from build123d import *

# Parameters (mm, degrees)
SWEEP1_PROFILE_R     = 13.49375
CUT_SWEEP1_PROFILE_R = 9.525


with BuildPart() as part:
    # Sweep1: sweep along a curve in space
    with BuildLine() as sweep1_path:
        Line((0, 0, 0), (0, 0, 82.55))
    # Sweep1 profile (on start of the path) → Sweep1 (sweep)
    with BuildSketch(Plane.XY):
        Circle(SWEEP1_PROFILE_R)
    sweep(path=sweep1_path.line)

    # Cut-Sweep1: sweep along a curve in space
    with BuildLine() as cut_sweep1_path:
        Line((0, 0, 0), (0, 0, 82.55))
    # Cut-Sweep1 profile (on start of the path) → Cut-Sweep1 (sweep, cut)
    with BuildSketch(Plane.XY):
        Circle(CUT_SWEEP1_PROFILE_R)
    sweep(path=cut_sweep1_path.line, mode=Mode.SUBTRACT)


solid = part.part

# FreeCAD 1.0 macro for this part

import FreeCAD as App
import Part
import Sketcher

V = App.Vector
Q = App.Units.Quantity

doc = App.newDocument("Part")
body = doc.addObject("PartDesign::Body", "Body")

# Sketch on XY plane
sketch1 = body.newObject("Sketcher::SketchObject", "Sketch")
sketch1.AttachmentSupport = (doc.getObject("XY_Plane"), [""])
sketch1.MapMode = "FlatFace"
sketch1.addGeometry(Part.Circle(V(0, 0, 0), V(0, 0, 1), 13.49375), False)
sketch1.addConstraint(Sketcher.Constraint("Coincident", 0, 3, -1, 1))
sketch1.addConstraint(Sketcher.Constraint("Diameter", 0, Q("1.0625 in")))

# Sketch on XZ plane
sketch2 = body.newObject("Sketcher::SketchObject", "Sketch001")
sketch2.AttachmentSupport = (doc.getObject("XZ_Plane"), [""])
sketch2.MapMode = "FlatFace"
sketch2.addGeometry(Part.LineSegment(V(0, 0, 0), V(0, 82.55, 0)), False)
sketch2.addConstraint(Sketcher.Constraint("Vertical", 0))
sketch2.addConstraint(Sketcher.Constraint("Coincident", 0, 1, -1, 1))
sketch2.addConstraint(Sketcher.Constraint("DistanceY", 0, 1, 0, 2, Q("3.25 in")))
doc.recompute()

additivepipe = body.newObject("PartDesign::AdditivePipe", "AdditivePipe")
additivepipe.Profile = sketch1
additivepipe.Spine = (sketch2, ["Edge1"])

# Sketch on XY plane
sketch3 = body.newObject("Sketcher::SketchObject", "Sketch002")
sketch3.AttachmentSupport = (doc.getObject("XY_Plane"), [""])
sketch3.MapMode = "FlatFace"
sketch3.addGeometry(Part.Circle(V(0, 0, 0), V(0, 0, 1), 9.525), False)
sketch3.addConstraint(Sketcher.Constraint("Coincident", 0, 3, -1, 1))
sketch3.addConstraint(Sketcher.Constraint("Diameter", 0, Q("0.75 in")))

# Sketch on XZ plane
sketch4 = body.newObject("Sketcher::SketchObject", "Sketch003")
sketch4.AttachmentSupport = (doc.getObject("XZ_Plane"), [""])
sketch4.MapMode = "FlatFace"
sketch4.addGeometry(Part.LineSegment(V(0, 0, 0), V(0, 82.55, 0)), False)
sketch4.addConstraint(Sketcher.Constraint("Vertical", 0))
sketch4.addConstraint(Sketcher.Constraint("Coincident", 0, 1, -1, 1))
sketch4.addConstraint(Sketcher.Constraint("DistanceY", 0, 1, 0, 2, Q("3.25 in")))
doc.recompute()

subtractivepipe = body.newObject("PartDesign::SubtractivePipe", "SubtractivePipe")
subtractivepipe.Profile = sketch3
subtractivepipe.Spine = (sketch4, ["Edge1"])

doc.recompute()
